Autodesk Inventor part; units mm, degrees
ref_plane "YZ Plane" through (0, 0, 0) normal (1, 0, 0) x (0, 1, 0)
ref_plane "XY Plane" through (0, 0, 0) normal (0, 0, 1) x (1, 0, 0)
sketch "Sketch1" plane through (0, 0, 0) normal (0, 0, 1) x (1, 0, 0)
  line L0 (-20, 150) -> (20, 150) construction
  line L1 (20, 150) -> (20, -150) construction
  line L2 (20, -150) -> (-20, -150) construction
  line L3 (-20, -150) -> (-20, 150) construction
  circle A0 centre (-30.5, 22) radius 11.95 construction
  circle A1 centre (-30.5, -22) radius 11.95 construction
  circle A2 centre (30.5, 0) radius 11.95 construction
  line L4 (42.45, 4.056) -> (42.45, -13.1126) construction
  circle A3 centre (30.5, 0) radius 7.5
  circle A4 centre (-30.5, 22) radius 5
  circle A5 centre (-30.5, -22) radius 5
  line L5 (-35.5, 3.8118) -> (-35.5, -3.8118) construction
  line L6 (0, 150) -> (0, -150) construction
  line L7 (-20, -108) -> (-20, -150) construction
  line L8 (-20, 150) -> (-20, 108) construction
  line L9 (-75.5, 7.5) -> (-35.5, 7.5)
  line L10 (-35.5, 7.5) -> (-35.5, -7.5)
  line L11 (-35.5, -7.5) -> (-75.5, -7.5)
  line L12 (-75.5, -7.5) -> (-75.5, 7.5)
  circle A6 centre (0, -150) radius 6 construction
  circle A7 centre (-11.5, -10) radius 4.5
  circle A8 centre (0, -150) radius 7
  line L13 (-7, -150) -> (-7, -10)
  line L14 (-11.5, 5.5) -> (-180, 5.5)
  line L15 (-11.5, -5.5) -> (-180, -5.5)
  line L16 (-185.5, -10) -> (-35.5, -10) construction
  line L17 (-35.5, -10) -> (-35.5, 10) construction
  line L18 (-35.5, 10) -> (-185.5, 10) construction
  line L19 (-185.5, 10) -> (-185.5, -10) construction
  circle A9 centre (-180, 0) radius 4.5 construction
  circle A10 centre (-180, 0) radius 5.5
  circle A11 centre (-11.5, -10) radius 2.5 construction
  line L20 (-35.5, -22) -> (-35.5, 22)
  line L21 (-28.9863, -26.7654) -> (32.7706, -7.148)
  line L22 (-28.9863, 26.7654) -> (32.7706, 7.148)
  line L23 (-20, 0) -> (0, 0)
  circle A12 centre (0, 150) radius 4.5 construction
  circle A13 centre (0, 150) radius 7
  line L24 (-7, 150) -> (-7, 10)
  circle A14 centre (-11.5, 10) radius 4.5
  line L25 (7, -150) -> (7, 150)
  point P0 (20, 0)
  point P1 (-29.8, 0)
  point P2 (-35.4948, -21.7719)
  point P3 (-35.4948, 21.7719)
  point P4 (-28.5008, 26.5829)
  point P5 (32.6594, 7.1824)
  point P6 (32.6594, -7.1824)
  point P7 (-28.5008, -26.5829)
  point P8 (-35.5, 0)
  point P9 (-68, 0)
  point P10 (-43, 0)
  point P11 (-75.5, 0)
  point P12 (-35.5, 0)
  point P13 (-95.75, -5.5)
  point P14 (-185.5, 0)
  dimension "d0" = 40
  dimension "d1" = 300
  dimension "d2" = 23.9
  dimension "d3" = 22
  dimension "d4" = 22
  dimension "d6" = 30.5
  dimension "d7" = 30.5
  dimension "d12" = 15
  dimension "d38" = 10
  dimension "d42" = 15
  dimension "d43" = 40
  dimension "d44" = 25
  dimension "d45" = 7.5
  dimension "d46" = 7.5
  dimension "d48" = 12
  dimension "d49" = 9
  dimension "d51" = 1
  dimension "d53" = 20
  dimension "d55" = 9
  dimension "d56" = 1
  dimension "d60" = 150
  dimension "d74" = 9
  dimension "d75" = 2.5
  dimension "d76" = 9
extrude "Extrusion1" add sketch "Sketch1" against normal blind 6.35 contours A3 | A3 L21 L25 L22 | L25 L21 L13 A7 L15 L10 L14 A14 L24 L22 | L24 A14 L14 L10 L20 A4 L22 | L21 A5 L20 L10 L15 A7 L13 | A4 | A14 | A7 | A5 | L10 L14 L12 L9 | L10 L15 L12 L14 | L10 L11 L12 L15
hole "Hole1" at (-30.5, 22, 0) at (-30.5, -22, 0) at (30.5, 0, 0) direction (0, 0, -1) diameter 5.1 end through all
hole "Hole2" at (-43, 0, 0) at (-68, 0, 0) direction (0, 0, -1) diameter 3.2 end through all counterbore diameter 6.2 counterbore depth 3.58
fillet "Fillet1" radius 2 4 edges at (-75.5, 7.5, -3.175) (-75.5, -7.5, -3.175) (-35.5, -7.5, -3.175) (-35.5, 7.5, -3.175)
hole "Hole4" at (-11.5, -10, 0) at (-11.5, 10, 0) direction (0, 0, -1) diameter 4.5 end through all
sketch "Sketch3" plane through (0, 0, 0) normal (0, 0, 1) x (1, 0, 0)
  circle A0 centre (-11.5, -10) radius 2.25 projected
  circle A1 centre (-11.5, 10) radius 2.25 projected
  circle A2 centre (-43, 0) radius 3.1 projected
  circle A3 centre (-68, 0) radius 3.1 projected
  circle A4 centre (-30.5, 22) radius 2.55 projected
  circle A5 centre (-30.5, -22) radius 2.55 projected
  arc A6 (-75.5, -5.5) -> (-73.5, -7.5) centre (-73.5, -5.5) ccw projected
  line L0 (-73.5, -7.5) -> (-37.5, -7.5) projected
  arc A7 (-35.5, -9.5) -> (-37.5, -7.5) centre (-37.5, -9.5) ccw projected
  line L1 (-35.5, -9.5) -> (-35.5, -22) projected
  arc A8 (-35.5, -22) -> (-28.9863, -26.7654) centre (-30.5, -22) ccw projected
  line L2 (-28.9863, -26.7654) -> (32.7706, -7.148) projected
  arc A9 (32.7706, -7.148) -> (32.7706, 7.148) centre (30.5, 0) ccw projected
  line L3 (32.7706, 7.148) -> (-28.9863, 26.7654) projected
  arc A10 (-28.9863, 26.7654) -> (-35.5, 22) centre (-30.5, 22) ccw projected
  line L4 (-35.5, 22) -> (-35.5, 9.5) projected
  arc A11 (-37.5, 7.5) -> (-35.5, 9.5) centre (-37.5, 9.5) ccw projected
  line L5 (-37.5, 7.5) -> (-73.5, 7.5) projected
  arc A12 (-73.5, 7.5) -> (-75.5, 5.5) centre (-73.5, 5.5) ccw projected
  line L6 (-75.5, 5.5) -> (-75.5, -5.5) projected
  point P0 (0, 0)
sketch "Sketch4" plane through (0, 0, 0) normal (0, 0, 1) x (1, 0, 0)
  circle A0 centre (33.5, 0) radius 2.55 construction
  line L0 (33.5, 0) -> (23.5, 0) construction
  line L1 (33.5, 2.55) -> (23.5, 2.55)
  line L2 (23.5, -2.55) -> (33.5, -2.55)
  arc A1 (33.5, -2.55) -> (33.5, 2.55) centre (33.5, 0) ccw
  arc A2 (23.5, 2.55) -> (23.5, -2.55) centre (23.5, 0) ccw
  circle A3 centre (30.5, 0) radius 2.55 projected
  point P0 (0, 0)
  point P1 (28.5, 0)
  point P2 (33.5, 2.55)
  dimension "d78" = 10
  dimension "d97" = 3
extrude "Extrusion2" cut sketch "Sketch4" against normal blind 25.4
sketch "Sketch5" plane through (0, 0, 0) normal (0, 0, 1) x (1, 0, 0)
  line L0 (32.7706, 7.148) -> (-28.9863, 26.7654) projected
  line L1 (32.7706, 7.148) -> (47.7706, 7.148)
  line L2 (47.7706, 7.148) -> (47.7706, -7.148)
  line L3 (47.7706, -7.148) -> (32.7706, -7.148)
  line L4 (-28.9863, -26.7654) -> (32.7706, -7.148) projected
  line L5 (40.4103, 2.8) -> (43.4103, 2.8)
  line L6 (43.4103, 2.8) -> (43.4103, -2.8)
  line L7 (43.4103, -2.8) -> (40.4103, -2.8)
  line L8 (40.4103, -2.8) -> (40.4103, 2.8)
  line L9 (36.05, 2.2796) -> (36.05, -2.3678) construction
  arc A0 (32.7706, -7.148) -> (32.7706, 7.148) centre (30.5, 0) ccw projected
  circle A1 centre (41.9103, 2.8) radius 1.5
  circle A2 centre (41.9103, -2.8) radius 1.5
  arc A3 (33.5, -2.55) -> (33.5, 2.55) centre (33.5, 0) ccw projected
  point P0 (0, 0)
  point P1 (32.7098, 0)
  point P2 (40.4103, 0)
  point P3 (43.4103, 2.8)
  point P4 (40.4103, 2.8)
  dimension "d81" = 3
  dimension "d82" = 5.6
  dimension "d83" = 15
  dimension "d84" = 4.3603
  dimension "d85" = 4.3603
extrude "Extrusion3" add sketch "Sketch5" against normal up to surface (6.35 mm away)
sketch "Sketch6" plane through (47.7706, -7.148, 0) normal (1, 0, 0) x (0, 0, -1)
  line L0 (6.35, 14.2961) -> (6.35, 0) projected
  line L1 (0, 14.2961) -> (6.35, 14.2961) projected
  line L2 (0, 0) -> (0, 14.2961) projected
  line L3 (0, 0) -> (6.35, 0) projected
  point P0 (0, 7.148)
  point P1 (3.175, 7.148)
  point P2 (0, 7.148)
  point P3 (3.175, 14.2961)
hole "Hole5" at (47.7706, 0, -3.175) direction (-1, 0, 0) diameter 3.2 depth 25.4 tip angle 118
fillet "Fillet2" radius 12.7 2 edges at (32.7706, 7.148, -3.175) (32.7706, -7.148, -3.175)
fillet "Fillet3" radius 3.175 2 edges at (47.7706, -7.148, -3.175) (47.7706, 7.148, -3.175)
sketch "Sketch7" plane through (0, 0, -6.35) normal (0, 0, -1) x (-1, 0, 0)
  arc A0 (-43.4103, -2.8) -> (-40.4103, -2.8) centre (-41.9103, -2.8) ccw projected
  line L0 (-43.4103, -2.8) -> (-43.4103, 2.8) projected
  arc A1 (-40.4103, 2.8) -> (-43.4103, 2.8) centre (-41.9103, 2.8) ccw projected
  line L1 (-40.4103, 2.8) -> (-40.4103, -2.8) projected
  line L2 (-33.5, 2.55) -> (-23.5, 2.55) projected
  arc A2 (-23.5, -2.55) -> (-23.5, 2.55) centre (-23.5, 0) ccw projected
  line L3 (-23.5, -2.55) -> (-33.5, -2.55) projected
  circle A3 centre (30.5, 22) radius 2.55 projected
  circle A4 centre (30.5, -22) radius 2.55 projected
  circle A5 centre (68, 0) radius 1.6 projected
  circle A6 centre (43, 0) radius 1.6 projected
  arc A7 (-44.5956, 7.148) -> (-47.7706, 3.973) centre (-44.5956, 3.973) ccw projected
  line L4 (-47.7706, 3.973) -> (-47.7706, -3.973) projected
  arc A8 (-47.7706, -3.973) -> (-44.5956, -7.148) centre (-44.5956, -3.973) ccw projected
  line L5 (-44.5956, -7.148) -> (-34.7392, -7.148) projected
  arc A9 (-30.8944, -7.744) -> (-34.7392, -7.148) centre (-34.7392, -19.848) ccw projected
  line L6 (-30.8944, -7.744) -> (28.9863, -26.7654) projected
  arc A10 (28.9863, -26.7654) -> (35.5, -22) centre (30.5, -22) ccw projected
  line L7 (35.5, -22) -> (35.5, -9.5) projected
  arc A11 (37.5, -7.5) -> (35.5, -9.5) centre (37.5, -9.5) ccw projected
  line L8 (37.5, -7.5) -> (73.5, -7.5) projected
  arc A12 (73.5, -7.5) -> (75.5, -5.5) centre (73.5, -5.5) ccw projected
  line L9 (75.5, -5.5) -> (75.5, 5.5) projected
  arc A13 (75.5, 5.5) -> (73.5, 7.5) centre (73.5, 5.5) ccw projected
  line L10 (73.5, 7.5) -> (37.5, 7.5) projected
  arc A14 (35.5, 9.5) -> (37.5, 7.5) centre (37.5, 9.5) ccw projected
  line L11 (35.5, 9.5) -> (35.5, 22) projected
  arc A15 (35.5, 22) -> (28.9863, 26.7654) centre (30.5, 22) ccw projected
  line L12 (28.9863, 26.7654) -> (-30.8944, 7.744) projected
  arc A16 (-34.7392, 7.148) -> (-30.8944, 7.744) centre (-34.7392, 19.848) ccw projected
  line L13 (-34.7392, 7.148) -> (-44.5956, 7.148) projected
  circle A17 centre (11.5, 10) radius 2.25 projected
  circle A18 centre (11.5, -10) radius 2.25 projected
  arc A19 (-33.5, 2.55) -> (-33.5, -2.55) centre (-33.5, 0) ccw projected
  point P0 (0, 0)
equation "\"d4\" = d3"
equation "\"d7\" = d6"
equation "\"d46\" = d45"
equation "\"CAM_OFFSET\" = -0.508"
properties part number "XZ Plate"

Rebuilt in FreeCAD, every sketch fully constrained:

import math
import FreeCAD as App
import Part
import Sketcher
from FreeCAD import Vector
Q = App.Units.Quantity


def edges_at(feature, points):
    """Names of the edges that pass closest to the given points."""
    edges = feature.Shape.Edges
    near = lambda p: min(range(len(edges)), key=lambda i: edges[i].distToShape(Part.Vertex(*p))[0])
    return sorted({f"Edge{near(p) + 1}" for p in points})

doc = App.newDocument("Part")
body = doc.addObject("PartDesign::Body", "Body")

sketch1 = doc.addObject("Sketcher::SketchObject", "Sketch")
body.addObject(sketch1)
sketch1.AttachmentSupport = (doc.XY_Plane, [""])
sketch1.MapMode = "FlatFace"
sketch1.addGeometry(Part.ArcOfCircle(Part.Circle(Vector(30.5, 0, 0), Vector(0, 0, 1), 7.5), math.radians(-72.377274), math.radians(72.377274)), False)
sketch1.addGeometry(Part.LineSegment(Vector(32.7706, 7.148, 0), Vector(-28.9863, 26.7654, 0)), False)
sketch1.addGeometry(Part.ArcOfCircle(Part.Circle(Vector(-30.5, 22, 0), Vector(0, 0, 1), 5), math.radians(72.37787), math.radians(180)), False)
sketch1.addGeometry(Part.LineSegment(Vector(-35.5, 22, 0), Vector(-35.5, 7.5, 0)), False)
sketch1.addGeometry(Part.LineSegment(Vector(-35.5, 7.5, 0), Vector(-75.5, 7.5, 0)), False)
sketch1.addGeometry(Part.LineSegment(Vector(-75.5, 7.5, 0), Vector(-75.5, -7.5, 0)), False)
sketch1.addGeometry(Part.LineSegment(Vector(-75.5, -7.5, 0), Vector(-35.5, -7.5, 0)), False)
sketch1.addGeometry(Part.LineSegment(Vector(-35.5, -7.5, 0), Vector(-35.5, -22, 0)), False)
sketch1.addGeometry(Part.ArcOfCircle(Part.Circle(Vector(-30.5, -22, 0), Vector(0, 0, 1), 5), math.radians(180), math.radians(287.62213)), False)
sketch1.addGeometry(Part.LineSegment(Vector(-28.9863, -26.7654, 0), Vector(32.7706, -7.148, 0)), False)
sketch1.addConstraint(Sketcher.Constraint("Tangent", 0, 2, 1, 1))
sketch1.addConstraint(Sketcher.Constraint("Tangent", 1, 2, 2, 1))
sketch1.addConstraint(Sketcher.Constraint("Tangent", 2, 2, 3, 1))
sketch1.addConstraint(Sketcher.Constraint("Coincident", 3, 2, 4, 1))
sketch1.addConstraint(Sketcher.Constraint("Coincident", 4, 2, 5, 1))
sketch1.addConstraint(Sketcher.Constraint("Coincident", 5, 2, 6, 1))
sketch1.addConstraint(Sketcher.Constraint("Coincident", 6, 2, 7, 1))
sketch1.addConstraint(Sketcher.Constraint("Tangent", 7, 2, 8, 1))
sketch1.addConstraint(Sketcher.Constraint("Tangent", 8, 2, 9, 1))
sketch1.addConstraint(Sketcher.Constraint("Tangent", 9, 2, 0, 1))
sketch1.addConstraint(Sketcher.Constraint("Vertical", 3))
sketch1.addConstraint(Sketcher.Constraint("Horizontal", 4))
sketch1.addConstraint(Sketcher.Constraint("Vertical", 5))
sketch1.addConstraint(Sketcher.Constraint("Horizontal", 6))
sketch1.addConstraint(Sketcher.Constraint("Vertical", 7))
sketch1.addConstraint(Sketcher.Constraint("Equal", 2, 8))
sketch1.addConstraint(Sketcher.Constraint("Symmetric", 2, 3, 8, 3, -1))
sketch1.addConstraint(Sketcher.Constraint("PointOnObject", 0, 3, -1))
sketch1.addConstraint(Sketcher.Constraint("Equal", 3, 7))
sketch1.addConstraint(Sketcher.Constraint("Radius", 2, Q("5 mm")))
sketch1.addConstraint(Sketcher.Constraint("Radius", 0, Q("7.5 mm")))
sketch1.addConstraint(Sketcher.Constraint("DistanceX", 4, 2, 4, 1, Q("40 mm")))
sketch1.addConstraint(Sketcher.Constraint("DistanceY", 5, 2, 5, 1, Q("15 mm")))
sketch1.addConstraint(Sketcher.Constraint("DistanceY", -1, 1, 2, 3, Q("22 mm")))
sketch1.addConstraint(Sketcher.Constraint("DistanceX", -1, 1, 0, 3, Q("30.5 mm")))
sketch1.addConstraint(Sketcher.Constraint("DistanceX", 2, 3, -1, 1, Q("30.5 mm")))
pad1 = doc.addObject("PartDesign::Pad", "Pad")
body.addObject(pad1)
pad1.Profile = sketch1
pad1.Length = 6.35
pad1.Reversed = True

sketch2 = doc.addObject("Sketcher::SketchObject", "Sketch001")
body.addObject(sketch2)
sketch2.AttachmentSupport = (doc.XY_Plane, [""])
sketch2.MapMode = "FlatFace"
sketch2.addGeometry(Part.Circle(Vector(-30.5, 22, 0), Vector(0, 0, 1), 2.55), False)
sketch2.addGeometry(Part.Circle(Vector(-30.5, -22, 0), Vector(0, 0, 1), 2.55), False)
sketch2.addGeometry(Part.Circle(Vector(30.5, 0, 0), Vector(0, 0, 1), 2.55), False)
sketch2.addConstraint(Sketcher.Constraint("Equal", 0, 1))
sketch2.addConstraint(Sketcher.Constraint("Equal", 1, 2))
sketch2.addConstraint(Sketcher.Constraint("Symmetric", 0, 3, 1, 3, -1))
sketch2.addConstraint(Sketcher.Constraint("PointOnObject", 2, 3, -1))
sketch2.addConstraint(Sketcher.Constraint("Diameter", 0, Q("5.1 mm")))
sketch2.addConstraint(Sketcher.Constraint("DistanceY", -1, 1, 0, 3, Q("22 mm")))
sketch2.addConstraint(Sketcher.Constraint("DistanceX", 0, 3, 2, 3, Q("61 mm")))
sketch2.addConstraint(Sketcher.Constraint("DistanceX", 0, 3, -1, 1, Q("30.5 mm")))
doc.recompute()
hole = doc.addObject("PartDesign::Hole", "Hole")
body.addObject(hole)
hole.Profile = sketch2
hole.ThreadType = "None"
hole.Diameter = 5.1
hole.DepthType = "ThroughAll"

sketch3 = doc.addObject("Sketcher::SketchObject", "Sketch002")
body.addObject(sketch3)
sketch3.AttachmentSupport = (doc.XY_Plane, [""])
sketch3.MapMode = "FlatFace"
sketch3.addGeometry(Part.Circle(Vector(-43, 0, 0), Vector(0, 0, 1), 1.6), False)
sketch3.addGeometry(Part.Circle(Vector(-68, 0, 0), Vector(0, 0, 1), 1.6), False)
sketch3.addConstraint(Sketcher.Constraint("Equal", 0, 1))
sketch3.addConstraint(Sketcher.Constraint("PointOnObject", 0, 3, -1))
sketch3.addConstraint(Sketcher.Constraint("PointOnObject", 1, 3, -1))
sketch3.addConstraint(Sketcher.Constraint("Diameter", 0, Q("3.2 mm")))
sketch3.addConstraint(Sketcher.Constraint("DistanceX", 0, 3, -1, 1, Q("43 mm")))
sketch3.addConstraint(Sketcher.Constraint("DistanceX", 1, 3, -1, 1, Q("68 mm")))
doc.recompute()
hole2 = doc.addObject("PartDesign::Hole", "Hole001")
body.addObject(hole2)
hole2.Profile = sketch3
hole2.ThreadType = "None"
hole2.Diameter = 3.2
hole2.DepthType = "ThroughAll"
hole2.HoleCutType = "Counterbore"
hole2.HoleCutDiameter = 6.2
hole2.HoleCutDepth = 3.58
doc.recompute()

fillet = doc.addObject("PartDesign::Fillet", "Fillet")
body.addObject(fillet)
fillet.Base = (hole2, edges_at(hole2, [
    (-75.5, 7.5, -3.175),
    (-75.5, -7.5, -3.175),
    (-35.5, -7.5, -3.175),
    (-35.5, 7.5, -3.175),
]))
fillet.Radius = 2

sketch4 = doc.addObject("Sketcher::SketchObject", "Sketch003")
body.addObject(sketch4)
sketch4.AttachmentSupport = (doc.XY_Plane, [""])
sketch4.MapMode = "FlatFace"
sketch4.addGeometry(Part.Circle(Vector(-11.5, -10, 0), Vector(0, 0, 1), 2.25), False)
sketch4.addGeometry(Part.Circle(Vector(-11.5, 10, 0), Vector(0, 0, 1), 2.25), False)
sketch4.addConstraint(Sketcher.Constraint("Equal", 0, 1))
sketch4.addConstraint(Sketcher.Constraint("Symmetric", 0, 3, 1, 3, -1))
sketch4.addConstraint(Sketcher.Constraint("Diameter", 0, Q("4.5 mm")))
sketch4.addConstraint(Sketcher.Constraint("DistanceY", 0, 3, -1, 1, Q("10 mm")))
sketch4.addConstraint(Sketcher.Constraint("DistanceX", 0, 3, -1, 1, Q("11.5 mm")))
doc.recompute()
hole3 = doc.addObject("PartDesign::Hole", "Hole002")
body.addObject(hole3)
hole3.Profile = sketch4
hole3.ThreadType = "None"
hole3.Diameter = 4.5
hole3.DepthType = "ThroughAll"

sketch5 = doc.addObject("Sketcher::SketchObject", "Sketch004")
body.addObject(sketch5)
sketch5.AttachmentSupport = (doc.XY_Plane, [""])
sketch5.MapMode = "FlatFace"
sketch5.addGeometry(Part.ArcOfCircle(Part.Circle(Vector(33.5, 0, 0), Vector(0, 0, 1), 2.55), math.radians(-90), math.radians(90)), False)
sketch5.addGeometry(Part.LineSegment(Vector(33.5, 2.55, 0), Vector(23.5, 2.55, 0)), False)
sketch5.addGeometry(Part.ArcOfCircle(Part.Circle(Vector(23.5, 0, 0), Vector(0, 0, 1), 2.55), math.radians(90), math.radians(270)), False)
sketch5.addGeometry(Part.LineSegment(Vector(23.5, -2.55, 0), Vector(33.5, -2.55, 0)), False)
sketch5.addConstraint(Sketcher.Constraint("Tangent", 0, 2, 1, 1))
sketch5.addConstraint(Sketcher.Constraint("Tangent", 1, 2, 2, 1))
sketch5.addConstraint(Sketcher.Constraint("Tangent", 2, 2, 3, 1))
sketch5.addConstraint(Sketcher.Constraint("Tangent", 3, 2, 0, 1))
sketch5.addConstraint(Sketcher.Constraint("Horizontal", 1))
sketch5.addConstraint(Sketcher.Constraint("Horizontal", 3))
sketch5.addConstraint(Sketcher.Constraint("PointOnObject", 0, 3, -1))
sketch5.addConstraint(Sketcher.Constraint("DistanceX", 1, 2, 1, 1, Q("10 mm")))
sketch5.addConstraint(Sketcher.Constraint("Radius", 0, Q("2.55 mm")))
sketch5.addConstraint(Sketcher.Constraint("DistanceX", -1, 1, 0, 3, Q("33.5 mm")))
pocket1 = doc.addObject("PartDesign::Pocket", "Pocket")
body.addObject(pocket1)
pocket1.Profile = sketch5
pocket1.Length = 25.4

sketch6 = doc.addObject("Sketcher::SketchObject", "Sketch005")
body.addObject(sketch6)
sketch6.AttachmentSupport = (doc.XY_Plane, [""])
sketch6.MapMode = "FlatFace"
sketch6.addGeometry(Part.LineSegment(Vector(47.7706, 7.148, 0), Vector(32.7706, 7.148, 0)), False)
sketch6.addGeometry(Part.ArcOfCircle(Part.Circle(Vector(30.5, 0, 0), Vector(0, 0, 1), 7.499969), math.radians(-72.377274), math.radians(72.377274)), False)
sketch6.addGeometry(Part.LineSegment(Vector(32.7706, -7.148, 0), Vector(47.7706, -7.148, 0)), False)
sketch6.addGeometry(Part.LineSegment(Vector(47.7706, -7.148, 0), Vector(47.7706, 7.148, 0)), False)
sketch6.addGeometry(Part.LineSegment(Vector(40.4103, -2.8, 0), Vector(40.4103, 2.8, 0)), False)
sketch6.addGeometry(Part.ArcOfCircle(Part.Circle(Vector(41.9103, 2.8, 0), Vector(0, 0, 1), 1.5), math.radians(0), math.radians(180)), False)
sketch6.addGeometry(Part.LineSegment(Vector(43.4103, 2.8, 0), Vector(43.4103, -2.8, 0)), False)
sketch6.addGeometry(Part.ArcOfCircle(Part.Circle(Vector(41.9103, -2.8, 0), Vector(0, 0, 1), 1.5), math.radians(180), math.radians(360)), False)
sketch6.addConstraint(Sketcher.Constraint("Coincident", 0, 2, 1, 2))
sketch6.addConstraint(Sketcher.Constraint("Coincident", 1, 1, 2, 1))
sketch6.addConstraint(Sketcher.Constraint("Coincident", 2, 2, 3, 1))
sketch6.addConstraint(Sketcher.Constraint("Coincident", 3, 2, 0, 1))
sketch6.addConstraint(Sketcher.Constraint("Tangent", 4, 2, 5, 2))
sketch6.addConstraint(Sketcher.Constraint("Tangent", 5, 1, 6, 1))
sketch6.addConstraint(Sketcher.Constraint("Tangent", 6, 2, 7, 2))
sketch6.addConstraint(Sketcher.Constraint("Tangent", 7, 1, 4, 1))
sketch6.addConstraint(Sketcher.Constraint("Horizontal", 0))
sketch6.addConstraint(Sketcher.Constraint("Horizontal", 2))
sketch6.addConstraint(Sketcher.Constraint("Vertical", 3))
sketch6.addConstraint(Sketcher.Constraint("Vertical", 4))
sketch6.addConstraint(Sketcher.Constraint("Vertical", 6))
sketch6.addConstraint(Sketcher.Constraint("Symmetric", 0, 2, 1, 1, -1))
sketch6.addConstraint(Sketcher.Constraint("Radius", 1, Q("7.5 mm")))
sketch6.addConstraint(Sketcher.Constraint("Radius", 5, Q("1.5 mm")))
sketch6.addConstraint(Sketcher.Constraint("DistanceX", 0, 2, 0, 1, Q("15 mm")))
sketch6.addConstraint(Sketcher.Constraint("DistanceY", 4, 1, 4, 2, Q("5.6 mm")))
sketch6.addConstraint(Sketcher.Constraint("DistanceX", -1, 1, 1, 3, Q("30.5 mm")))
sketch6.addConstraint(Sketcher.Constraint("DistanceY", -1, 1, 5, 3, Q("2.8 mm")))
sketch6.addConstraint(Sketcher.Constraint("DistanceX", 5, 1, 3, 2, Q("4.3603 mm")))
sketch6.addConstraint(Sketcher.Constraint("DistanceY", 3, 1, 3, 2, Q("14.296 mm")))
pad2 = doc.addObject("PartDesign::Pad", "Pad001")
body.addObject(pad2)
pad2.Profile = sketch6
pad2.Length = 6.35
pad2.Reversed = True

sketch7 = doc.addObject("Sketcher::SketchObject", "Sketch006")
body.addObject(sketch7)
sketch7.AttachmentSupport = (doc.YZ_Plane, [""])
sketch7.MapMode = "FlatFace"
sketch7.AttachmentOffset = App.Placement(Vector(0, 0, 47.7706), App.Rotation())
sketch7.addGeometry(Part.Circle(Vector(0, -3.175, 0), Vector(0, 0, 1), 1.6), False)
sketch7.addConstraint(Sketcher.Constraint("PointOnObject", 0, 3, -2))
sketch7.addConstraint(Sketcher.Constraint("Diameter", 0, Q("3.2 mm")))
sketch7.addConstraint(Sketcher.Constraint("DistanceY", 0, 3, -1, 1, Q("3.175 mm")))
doc.recompute()
hole4 = doc.addObject("PartDesign::Hole", "Hole003")
body.addObject(hole4)
hole4.Profile = sketch7
hole4.ThreadType = "None"
hole4.Diameter = 3.2
hole4.DepthType = "Dimension"
hole4.Depth = 25.4
hole4.DrillPoint = "Angled"
hole4.DrillPointAngle = 118
doc.recompute()

fillet2 = doc.addObject("PartDesign::Fillet", "Fillet001")
body.addObject(fillet2)
fillet2.Base = (hole4, edges_at(hole4, [(32.771, 7.148, -3.175), (32.771, -7.148, -3.175)]))
fillet2.Radius = 12.7
doc.recompute()

fillet3 = doc.addObject("PartDesign::Fillet", "Fillet002")
body.addObject(fillet3)
fillet3.Base = (fillet2, edges_at(fillet2, [(47.771, -7.148, -3.175), (47.771, 7.148, -3.175)]))
fillet3.Radius = 3.175

doc.recompute()
